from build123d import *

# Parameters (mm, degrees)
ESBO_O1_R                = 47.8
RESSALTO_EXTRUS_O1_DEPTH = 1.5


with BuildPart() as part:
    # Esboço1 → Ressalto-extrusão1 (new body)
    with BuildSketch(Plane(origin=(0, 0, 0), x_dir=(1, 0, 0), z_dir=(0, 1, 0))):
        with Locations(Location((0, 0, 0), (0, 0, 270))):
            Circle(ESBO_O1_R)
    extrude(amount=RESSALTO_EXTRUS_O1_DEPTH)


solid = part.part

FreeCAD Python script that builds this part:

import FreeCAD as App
import Part
import Sketcher

V = App.Vector

doc = App.newDocument("Part")
body = doc.addObject("PartDesign::Body", "Body")

sketch1 = body.newObject("Sketcher::SketchObject", "Sketch")
sketch1.AttachmentSupport = (doc.getObject("XZ_Plane"), [""])
sketch1.MapMode = "FlatFace"
sketch1.addGeometry(Part.Circle(V(0, 0, 0), V(0, 0, 1), 48), False)
sketch1.addConstraint(Sketcher.Constraint("Coincident", 0, 3, -1, 1))
sketch1.addConstraint(Sketcher.Constraint("Diameter", 0, 95.6))
pad1 = body.newObject("PartDesign::Pad", "Pad")
pad1.Profile = sketch1
pad1.Length = 1.5
pad1.Reversed = True

doc.recompute()
